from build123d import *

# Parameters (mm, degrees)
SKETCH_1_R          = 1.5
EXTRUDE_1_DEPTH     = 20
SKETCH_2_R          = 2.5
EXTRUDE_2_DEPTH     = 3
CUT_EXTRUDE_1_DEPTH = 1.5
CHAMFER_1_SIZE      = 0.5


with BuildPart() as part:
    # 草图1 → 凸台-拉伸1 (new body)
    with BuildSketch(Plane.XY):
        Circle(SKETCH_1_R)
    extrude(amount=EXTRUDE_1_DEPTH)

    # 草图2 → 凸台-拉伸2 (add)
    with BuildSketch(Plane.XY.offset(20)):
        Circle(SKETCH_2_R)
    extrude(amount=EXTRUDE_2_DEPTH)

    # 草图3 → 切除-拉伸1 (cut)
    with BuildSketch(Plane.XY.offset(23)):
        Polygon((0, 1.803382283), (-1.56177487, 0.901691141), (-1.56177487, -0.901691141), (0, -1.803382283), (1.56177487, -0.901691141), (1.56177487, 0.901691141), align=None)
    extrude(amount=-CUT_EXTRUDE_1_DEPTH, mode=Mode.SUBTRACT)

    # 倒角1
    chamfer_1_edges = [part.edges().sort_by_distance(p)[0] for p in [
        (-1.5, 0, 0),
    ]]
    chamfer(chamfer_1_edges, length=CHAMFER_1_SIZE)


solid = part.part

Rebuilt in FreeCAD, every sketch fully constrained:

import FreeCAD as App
import Part
import Sketcher

V = App.Vector
Q = App.Units.Quantity


def edges_at(feature, points):
    """Names of the edges that pass closest to the given points."""
    edges = feature.Shape.Edges
    near = lambda p: min(range(len(edges)), key=lambda i: edges[i].distToShape(Part.Vertex(*p))[0])
    return sorted({f"Edge{near(p) + 1}" for p in points})


def add_polygon(sketch, points):
    """Adds a closed chain of lines whose ends are joined by coincident constraints."""
    first, n = sketch.GeometryCount, len(points)
    for a, b in zip(points, points[1:] + points[:1]):
        sketch.addGeometry(Part.LineSegment(App.Vector(*a, 0), App.Vector(*b, 0)), False)
    for i in range(n):
        sketch.addConstraint(Sketcher.Constraint("Coincident", first + i, 2, first + (i + 1) % n, 1))

doc = App.newDocument("Part")
body = doc.addObject("PartDesign::Body", "Body")

# Sketch on XY plane
sketch1 = body.newObject("Sketcher::SketchObject", "Sketch")
sketch1.AttachmentSupport = (doc.getObject("XY_Plane"), [""])
sketch1.MapMode = "FlatFace"
sketch1.addGeometry(Part.Circle(V(0, 0, 0), V(0, 0, 1), 1.5), False)
sketch1.addConstraint([
    Sketcher.Constraint("Coincident", 0, 3, -1, 1),
    Sketcher.Constraint("Diameter", 0, Q("3 mm")),
])
pad1 = body.newObject("PartDesign::Pad", "Pad")
pad1.Profile = sketch1
pad1.Length = 20

# Sketch on XY plane
sketch2 = body.newObject("Sketcher::SketchObject", "Sketch001")
sketch2.AttachmentSupport = (doc.getObject("XY_Plane"), [""])
sketch2.MapMode = "FlatFace"
sketch2.AttachmentOffset = App.Placement(V(0, 0, 20), App.Rotation())
sketch2.addGeometry(Part.Circle(V(0, 0, 0), V(0, 0, 1), 2.5), False)
sketch2.addConstraint([
    Sketcher.Constraint("Coincident", 0, 3, -1, 1),
    Sketcher.Constraint("Diameter", 0, Q("5 mm")),
])
pad2 = body.newObject("PartDesign::Pad", "Pad001")
pad2.Profile = sketch2
pad2.Length = 3

# Sketch on XY plane
sketch3 = body.newObject("Sketcher::SketchObject", "Sketch002")
sketch3.AttachmentSupport = (doc.getObject("XY_Plane"), [""])
sketch3.MapMode = "FlatFace"
sketch3.AttachmentOffset = App.Placement(V(0, 0, 23), App.Rotation())
add_polygon(sketch3, [(0, 1.8), (-1.6, 0.9), (-1.6, -0.9), (0, -1.8), (1.6, -0.9), (1.6, 0.9)])  # lines 0-5
sketch3.addConstraint([
    Sketcher.Constraint("Vertical", 1),
    Sketcher.Constraint("Vertical", 4),
    Sketcher.Constraint("Symmetric", 0, 2, 3, 2, -1, 1),
    Sketcher.Constraint("Symmetric", 2, 2, 5, 2, -1, 1),
    Sketcher.Constraint("PointOnObject", 2, 2, -2),
    Sketcher.Constraint("Parallel", 2, 5),
    Sketcher.Constraint("Horizontal", 1, 2, 3, 2),
    Sketcher.Constraint("Angle", 0, Q("-150 deg")),
    Sketcher.Constraint("DistanceY", 1, 2, 1, 1, Q("1.803382 mm")),
    Sketcher.Constraint("DistanceY", 2, 2, 1, 2, Q("0.901691 mm")),
])
pocket1 = body.newObject("PartDesign::Pocket", "Pocket")
pocket1.Profile = sketch3
pocket1.Length = 1.5
doc.recompute()

chamfer = body.newObject("PartDesign::Chamfer", "Chamfer")
chamfer.Base = (pocket1, edges_at(pocket1, [(-1.5, 0, 0)]))
chamfer.Size = 0.5

doc.recompute()
